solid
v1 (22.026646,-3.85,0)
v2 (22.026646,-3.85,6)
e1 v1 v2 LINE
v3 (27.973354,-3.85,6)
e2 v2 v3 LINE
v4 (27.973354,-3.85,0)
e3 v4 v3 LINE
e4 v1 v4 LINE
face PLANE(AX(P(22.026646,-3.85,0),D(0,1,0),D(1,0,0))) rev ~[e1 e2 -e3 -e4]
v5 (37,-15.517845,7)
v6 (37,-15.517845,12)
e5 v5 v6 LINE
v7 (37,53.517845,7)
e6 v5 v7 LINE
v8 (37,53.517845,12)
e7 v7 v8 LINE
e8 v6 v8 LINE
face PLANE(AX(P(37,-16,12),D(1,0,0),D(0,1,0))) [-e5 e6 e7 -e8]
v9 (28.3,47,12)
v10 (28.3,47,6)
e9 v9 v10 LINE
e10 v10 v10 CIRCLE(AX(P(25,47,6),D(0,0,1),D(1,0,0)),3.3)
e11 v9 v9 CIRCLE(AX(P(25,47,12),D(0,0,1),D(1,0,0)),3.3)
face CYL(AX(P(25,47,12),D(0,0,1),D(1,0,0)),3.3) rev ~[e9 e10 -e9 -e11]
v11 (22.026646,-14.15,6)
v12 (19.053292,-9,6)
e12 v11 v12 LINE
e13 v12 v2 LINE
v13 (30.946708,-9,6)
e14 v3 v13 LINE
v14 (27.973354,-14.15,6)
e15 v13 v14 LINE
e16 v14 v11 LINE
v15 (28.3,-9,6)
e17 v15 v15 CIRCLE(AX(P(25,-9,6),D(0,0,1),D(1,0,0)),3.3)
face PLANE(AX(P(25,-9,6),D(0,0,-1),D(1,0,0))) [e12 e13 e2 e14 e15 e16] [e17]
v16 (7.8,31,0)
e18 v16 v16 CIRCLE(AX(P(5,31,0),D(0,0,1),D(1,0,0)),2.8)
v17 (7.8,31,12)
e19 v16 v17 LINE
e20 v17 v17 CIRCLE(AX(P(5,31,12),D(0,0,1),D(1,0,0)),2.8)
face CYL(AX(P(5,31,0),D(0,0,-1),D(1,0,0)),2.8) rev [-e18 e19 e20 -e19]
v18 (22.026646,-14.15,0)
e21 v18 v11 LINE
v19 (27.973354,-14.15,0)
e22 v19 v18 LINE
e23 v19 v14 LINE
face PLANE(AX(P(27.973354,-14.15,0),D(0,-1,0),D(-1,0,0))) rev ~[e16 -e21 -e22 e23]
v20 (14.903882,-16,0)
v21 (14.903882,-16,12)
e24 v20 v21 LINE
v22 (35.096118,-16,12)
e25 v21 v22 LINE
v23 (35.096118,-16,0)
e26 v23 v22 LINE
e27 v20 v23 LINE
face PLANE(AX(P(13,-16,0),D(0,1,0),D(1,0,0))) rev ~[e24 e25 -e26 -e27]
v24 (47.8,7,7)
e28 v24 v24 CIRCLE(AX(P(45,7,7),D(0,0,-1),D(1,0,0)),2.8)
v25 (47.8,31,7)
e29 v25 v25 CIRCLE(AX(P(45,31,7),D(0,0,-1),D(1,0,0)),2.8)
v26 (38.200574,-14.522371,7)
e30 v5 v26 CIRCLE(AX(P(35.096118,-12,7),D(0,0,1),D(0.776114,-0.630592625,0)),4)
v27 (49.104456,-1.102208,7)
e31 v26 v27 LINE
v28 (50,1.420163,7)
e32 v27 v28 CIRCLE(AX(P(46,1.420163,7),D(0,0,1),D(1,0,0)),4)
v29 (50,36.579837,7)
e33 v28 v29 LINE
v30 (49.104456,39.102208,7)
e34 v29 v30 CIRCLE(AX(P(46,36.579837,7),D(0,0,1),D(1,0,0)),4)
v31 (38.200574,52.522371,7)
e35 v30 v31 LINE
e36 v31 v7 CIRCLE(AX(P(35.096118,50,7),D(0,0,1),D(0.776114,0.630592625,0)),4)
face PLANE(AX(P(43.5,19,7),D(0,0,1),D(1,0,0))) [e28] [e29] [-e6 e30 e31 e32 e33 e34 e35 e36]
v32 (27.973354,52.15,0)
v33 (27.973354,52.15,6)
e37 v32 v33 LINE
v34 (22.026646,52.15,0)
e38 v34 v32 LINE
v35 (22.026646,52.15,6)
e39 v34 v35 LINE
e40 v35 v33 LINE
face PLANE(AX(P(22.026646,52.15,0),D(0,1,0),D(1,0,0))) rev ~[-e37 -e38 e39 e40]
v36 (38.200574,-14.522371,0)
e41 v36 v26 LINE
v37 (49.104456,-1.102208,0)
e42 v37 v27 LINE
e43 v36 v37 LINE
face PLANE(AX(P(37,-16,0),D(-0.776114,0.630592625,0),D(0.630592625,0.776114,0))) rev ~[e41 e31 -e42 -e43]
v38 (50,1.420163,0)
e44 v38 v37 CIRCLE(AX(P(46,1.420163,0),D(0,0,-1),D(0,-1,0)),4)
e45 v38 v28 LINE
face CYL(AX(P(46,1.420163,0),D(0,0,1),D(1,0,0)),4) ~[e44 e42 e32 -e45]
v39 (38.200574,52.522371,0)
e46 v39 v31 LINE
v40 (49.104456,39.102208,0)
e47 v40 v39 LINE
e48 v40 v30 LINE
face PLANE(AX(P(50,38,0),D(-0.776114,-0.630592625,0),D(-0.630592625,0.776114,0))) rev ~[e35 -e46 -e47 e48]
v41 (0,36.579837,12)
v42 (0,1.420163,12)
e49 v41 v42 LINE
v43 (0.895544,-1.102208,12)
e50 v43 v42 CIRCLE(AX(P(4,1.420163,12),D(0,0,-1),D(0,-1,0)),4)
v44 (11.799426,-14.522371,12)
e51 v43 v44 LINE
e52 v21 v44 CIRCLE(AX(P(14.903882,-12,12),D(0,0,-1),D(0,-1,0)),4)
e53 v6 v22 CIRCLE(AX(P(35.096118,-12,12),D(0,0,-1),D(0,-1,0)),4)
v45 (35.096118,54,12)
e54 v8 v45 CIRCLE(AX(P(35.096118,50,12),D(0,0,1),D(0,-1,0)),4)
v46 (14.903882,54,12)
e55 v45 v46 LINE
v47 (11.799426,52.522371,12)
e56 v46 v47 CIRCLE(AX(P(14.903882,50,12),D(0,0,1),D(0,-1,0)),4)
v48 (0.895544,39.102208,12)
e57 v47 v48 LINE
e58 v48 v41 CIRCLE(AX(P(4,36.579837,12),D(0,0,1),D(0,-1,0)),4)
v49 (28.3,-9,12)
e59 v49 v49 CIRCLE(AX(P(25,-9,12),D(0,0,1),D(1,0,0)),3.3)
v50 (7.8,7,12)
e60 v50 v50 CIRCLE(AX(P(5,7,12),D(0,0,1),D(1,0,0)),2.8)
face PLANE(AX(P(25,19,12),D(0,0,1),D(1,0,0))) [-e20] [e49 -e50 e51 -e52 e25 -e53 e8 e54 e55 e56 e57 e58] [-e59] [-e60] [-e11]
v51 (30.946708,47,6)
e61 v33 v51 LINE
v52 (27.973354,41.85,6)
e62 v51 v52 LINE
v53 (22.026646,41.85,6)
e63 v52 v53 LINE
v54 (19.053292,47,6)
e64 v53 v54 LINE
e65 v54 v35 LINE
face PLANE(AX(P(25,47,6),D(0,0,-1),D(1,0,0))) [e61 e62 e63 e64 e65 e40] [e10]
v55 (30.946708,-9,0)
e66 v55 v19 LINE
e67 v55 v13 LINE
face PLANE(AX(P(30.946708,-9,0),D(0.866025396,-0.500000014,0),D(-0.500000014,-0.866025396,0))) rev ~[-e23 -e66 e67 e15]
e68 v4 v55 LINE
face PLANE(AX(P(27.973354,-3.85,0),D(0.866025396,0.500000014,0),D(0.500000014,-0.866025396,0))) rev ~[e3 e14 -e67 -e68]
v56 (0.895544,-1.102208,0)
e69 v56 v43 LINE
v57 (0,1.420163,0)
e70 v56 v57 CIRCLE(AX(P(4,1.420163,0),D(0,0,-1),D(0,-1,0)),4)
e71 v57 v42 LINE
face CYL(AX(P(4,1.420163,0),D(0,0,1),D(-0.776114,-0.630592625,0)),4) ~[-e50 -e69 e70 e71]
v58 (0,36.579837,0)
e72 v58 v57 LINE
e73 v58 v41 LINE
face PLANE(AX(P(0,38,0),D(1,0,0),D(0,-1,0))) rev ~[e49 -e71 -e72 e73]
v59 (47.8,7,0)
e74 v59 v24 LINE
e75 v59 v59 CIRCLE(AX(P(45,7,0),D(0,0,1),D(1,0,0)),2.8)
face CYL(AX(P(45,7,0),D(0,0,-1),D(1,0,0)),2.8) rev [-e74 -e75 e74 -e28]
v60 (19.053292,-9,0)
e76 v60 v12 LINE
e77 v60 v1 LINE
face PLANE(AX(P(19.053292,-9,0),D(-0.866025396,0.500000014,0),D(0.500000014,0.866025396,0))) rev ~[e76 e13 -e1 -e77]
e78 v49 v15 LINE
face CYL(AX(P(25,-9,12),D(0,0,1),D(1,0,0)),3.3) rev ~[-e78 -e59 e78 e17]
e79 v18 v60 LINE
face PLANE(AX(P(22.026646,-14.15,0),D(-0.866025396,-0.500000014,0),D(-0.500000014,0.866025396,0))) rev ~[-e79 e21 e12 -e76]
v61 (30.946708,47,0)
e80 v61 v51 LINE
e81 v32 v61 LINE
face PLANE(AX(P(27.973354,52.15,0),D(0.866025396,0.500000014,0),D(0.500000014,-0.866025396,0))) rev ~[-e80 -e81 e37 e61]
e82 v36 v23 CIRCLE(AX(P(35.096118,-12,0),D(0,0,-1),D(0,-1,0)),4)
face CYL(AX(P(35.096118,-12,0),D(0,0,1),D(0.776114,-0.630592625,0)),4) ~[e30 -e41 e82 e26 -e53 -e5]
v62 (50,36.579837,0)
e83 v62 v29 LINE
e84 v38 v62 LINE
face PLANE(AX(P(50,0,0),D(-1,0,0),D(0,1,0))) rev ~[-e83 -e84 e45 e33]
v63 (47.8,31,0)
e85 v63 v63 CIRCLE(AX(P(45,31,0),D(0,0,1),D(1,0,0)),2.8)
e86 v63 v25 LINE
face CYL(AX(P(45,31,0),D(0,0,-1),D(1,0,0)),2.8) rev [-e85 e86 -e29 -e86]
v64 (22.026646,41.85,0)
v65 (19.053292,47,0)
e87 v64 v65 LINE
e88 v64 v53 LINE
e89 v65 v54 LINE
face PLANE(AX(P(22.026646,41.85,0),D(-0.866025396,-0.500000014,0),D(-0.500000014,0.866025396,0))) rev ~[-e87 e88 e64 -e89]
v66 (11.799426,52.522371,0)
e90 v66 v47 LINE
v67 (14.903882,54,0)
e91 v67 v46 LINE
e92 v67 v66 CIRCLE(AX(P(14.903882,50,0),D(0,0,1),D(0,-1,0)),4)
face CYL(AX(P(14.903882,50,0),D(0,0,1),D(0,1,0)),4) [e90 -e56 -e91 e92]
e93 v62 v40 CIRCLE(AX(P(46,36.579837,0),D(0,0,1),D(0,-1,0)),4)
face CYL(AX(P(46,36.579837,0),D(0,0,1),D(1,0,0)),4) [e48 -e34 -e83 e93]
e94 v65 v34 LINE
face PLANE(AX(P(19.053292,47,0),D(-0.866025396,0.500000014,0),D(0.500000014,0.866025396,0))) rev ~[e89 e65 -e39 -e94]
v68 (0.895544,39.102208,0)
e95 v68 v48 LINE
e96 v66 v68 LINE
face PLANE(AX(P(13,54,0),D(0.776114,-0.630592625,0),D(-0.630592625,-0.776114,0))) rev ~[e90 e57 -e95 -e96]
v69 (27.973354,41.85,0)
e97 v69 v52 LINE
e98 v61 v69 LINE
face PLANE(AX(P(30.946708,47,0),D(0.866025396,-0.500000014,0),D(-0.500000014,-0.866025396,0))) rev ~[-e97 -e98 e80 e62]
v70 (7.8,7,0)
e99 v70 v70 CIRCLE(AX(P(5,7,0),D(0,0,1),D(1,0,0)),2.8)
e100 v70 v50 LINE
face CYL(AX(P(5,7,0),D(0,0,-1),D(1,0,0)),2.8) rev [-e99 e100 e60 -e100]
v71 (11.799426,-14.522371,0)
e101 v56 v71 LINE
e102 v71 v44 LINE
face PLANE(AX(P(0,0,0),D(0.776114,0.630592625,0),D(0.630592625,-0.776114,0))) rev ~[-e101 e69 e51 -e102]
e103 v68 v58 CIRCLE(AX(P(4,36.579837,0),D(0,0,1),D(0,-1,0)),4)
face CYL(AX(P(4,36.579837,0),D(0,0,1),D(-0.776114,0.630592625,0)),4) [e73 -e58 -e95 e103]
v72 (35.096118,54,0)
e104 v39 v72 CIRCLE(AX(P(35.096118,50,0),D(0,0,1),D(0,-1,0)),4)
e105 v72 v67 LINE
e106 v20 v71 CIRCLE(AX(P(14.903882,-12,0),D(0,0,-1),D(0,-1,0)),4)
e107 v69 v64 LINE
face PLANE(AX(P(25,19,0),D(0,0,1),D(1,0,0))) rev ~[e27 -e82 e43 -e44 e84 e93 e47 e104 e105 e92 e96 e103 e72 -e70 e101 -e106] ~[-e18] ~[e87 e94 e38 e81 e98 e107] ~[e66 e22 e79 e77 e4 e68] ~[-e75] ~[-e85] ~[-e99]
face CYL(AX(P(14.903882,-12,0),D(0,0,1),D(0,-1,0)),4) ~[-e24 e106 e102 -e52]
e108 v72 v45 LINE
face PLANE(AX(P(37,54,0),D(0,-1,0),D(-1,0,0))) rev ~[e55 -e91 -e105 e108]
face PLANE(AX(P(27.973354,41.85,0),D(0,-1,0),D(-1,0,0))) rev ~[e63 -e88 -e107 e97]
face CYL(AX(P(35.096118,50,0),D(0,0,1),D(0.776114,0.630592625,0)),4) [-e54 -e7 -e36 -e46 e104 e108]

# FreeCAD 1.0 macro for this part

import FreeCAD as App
import Part
import Sketcher
Q = App.Units.Quantity


def edges_at(feature, points):
    """Names of the edges that pass closest to the given points."""
    edges = feature.Shape.Edges
    near = lambda p: min(range(len(edges)), key=lambda i: edges[i].distToShape(Part.Vertex(*p))[0])
    return sorted({f"Edge{near(p) + 1}" for p in points})


def add_polygon(sketch, points):
    """Adds a closed chain of lines whose ends are joined by coincident constraints."""
    first, n = sketch.GeometryCount, len(points)
    for a, b in zip(points, points[1:] + points[:1]):
        sketch.addGeometry(Part.LineSegment(App.Vector(*a, 0), App.Vector(*b, 0)), False)
    for i in range(n):
        sketch.addConstraint(Sketcher.Constraint("Coincident", first + i, 2, first + (i + 1) % n, 1))

doc = App.newDocument("Part")
params = doc.addObject("Spreadsheet::Sheet", "Params")
for row, (alias, value) in enumerate([
    ("sketch1_diameter", "5.6 mm"),
    ("sketch1_width", "24 mm"),
    ("sketch1_height", "38 mm"),
    ("pad1_length", "12 mm"),
    ("sketch2_diameter", "6.6 mm"),
    ("pocket2_length", "6 mm"),
    ("fillet_radius", "4 mm"),
    ("sketch4_width", "13 mm"),
    ("sketch4_height", "70 mm"),
    ("pocket3_length", "5 mm"),
], start=1):
    params.set(f"A{row}", alias)
    params.set(f"B{row}", "=" + value)
    params.setAlias(f"B{row}", alias)

body = doc.addObject("PartDesign::Body", "Body")

sketch1 = doc.addObject("Sketcher::SketchObject", "Sketch")
body.addObject(sketch1)
sketch1.AttachmentSupport = (doc.XY_Plane, [""])
sketch1.MapMode = "FlatFace"
add_polygon(sketch1, [(50, 0), (50, 38), (37, 54), (13, 54), (0, 38), (0, 0), (13, -16), (37, -16)])
sketch1.addGeometry(Part.Circle(App.Vector(5, 7, 0), App.Vector(0, 0, 1), 2.8), False)
sketch1.addGeometry(Part.Circle(App.Vector(45, 7, 0), App.Vector(0, 0, 1), 2.8), False)
sketch1.addGeometry(Part.Circle(App.Vector(5, 31, 0), App.Vector(0, 0, 1), 2.8), False)
sketch1.addGeometry(Part.Circle(App.Vector(45, 31, 0), App.Vector(0, 0, 1), 2.8), False)
sketch1.addConstraint([
    Sketcher.Constraint("Vertical", 0),
    Sketcher.Constraint("Horizontal", 2),
    Sketcher.Constraint("Vertical", 4),
    Sketcher.Constraint("Horizontal", 6),
    Sketcher.Constraint("Coincident", 4, 2, -1, 1),
    Sketcher.Constraint("Equal", 8, 9),
    Sketcher.Constraint("Equal", 9, 10),
    Sketcher.Constraint("Equal", 10, 11),
    Sketcher.Constraint("PointOnObject", 7, 2, -1),
    Sketcher.Constraint("Parallel", 1, 5),
    Sketcher.Constraint("Parallel", 3, 7),
    Sketcher.Constraint("Horizontal", 8, 3, 9, 3),
    Sketcher.Constraint("Horizontal", 10, 3, 11, 3),
    Sketcher.Constraint("Horizontal", 0, 2, 3, 2),
    Sketcher.Constraint("Vertical", 8, 3, 10, 3),
    Sketcher.Constraint("Vertical", 9, 3, 11, 3),
    Sketcher.Constraint("Vertical", 2, 2, 5, 2),
    Sketcher.Constraint("Vertical", 1, 2, 6, 2),
    Sketcher.Constraint("Diameter", 8, 5.6),
    Sketcher.Constraint("DistanceX", 2, 2, 2, 1, 24.0),
    Sketcher.Constraint("DistanceY", 0, 1, 0, 2, 38.0),
    Sketcher.Constraint("DistanceX", -1, 1, 8, 3, 5.0),
    Sketcher.Constraint("DistanceY", -1, 1, 8, 3, 7.0),
    Sketcher.Constraint("DistanceX", -1, 1, 9, 3, 45.0),
    Sketcher.Constraint("DistanceY", -1, 1, 10, 3, 31.0),
    Sketcher.Constraint("DistanceX", -1, 1, 0, 2, 50.0),
    Sketcher.Constraint("DistanceY", -1, 1, 1, 2, 54.0),
])
sketch1.setExpression("Constraints[26]", "Params.sketch1_diameter")
sketch1.setExpression("Constraints[27]", "Params.sketch1_width")
sketch1.setExpression("Constraints[28]", "Params.sketch1_height")
pad1 = doc.addObject("PartDesign::Pad", "Pad")
body.addObject(pad1)
pad1.Profile = sketch1
pad1.setExpression("Length", "Params.pad1_length")

sketch2 = doc.addObject("Sketcher::SketchObject", "Sketch001")
body.addObject(sketch2)
sketch2.AttachmentSupport = (doc.XY_Plane, [""])
sketch2.MapMode = "FlatFace"
sketch2.AttachmentOffset = App.Placement(App.Vector(0, 0, 12), App.Rotation())
sketch2.addGeometry([
    Part.Circle(App.Vector(25, 47, 0), App.Vector(0, 0, 1), 3.3),
    Part.Circle(App.Vector(25, -9, 0), App.Vector(0, 0, 1), 3.3),
], False)
sketch2.addConstraint([
    Sketcher.Constraint("Equal", 0, 1),
    Sketcher.Constraint("Vertical", 0, 3, 1, 3),
    Sketcher.Constraint("Diameter", 0, 6.6),
    Sketcher.Constraint("DistanceX", -1, 1, 0, 3, 25.0),
    Sketcher.Constraint("DistanceY", -1, 1, 0, 3, 47.0),
    Sketcher.Constraint("DistanceY", 1, 3, -1, 1, 9.0),
])
sketch2.setExpression("Constraints[2]", "Params.sketch2_diameter")
pocket1 = doc.addObject("PartDesign::Pocket", "Pocket")
body.addObject(pocket1)
pocket1.Profile = sketch2
pocket1.Type = "ThroughAll"

sketch3 = doc.addObject("Sketcher::SketchObject", "Sketch002")
body.addObject(sketch3)
sketch3.AttachmentSupport = (doc.XY_Plane, [""])
sketch3.MapMode = "FlatFace"
add_polygon(sketch3, [(28, 52), (31, 47), (28, 42), (22, 42), (19, 47), (22, 52)])
add_polygon(sketch3, [(28, -4), (31, -9), (28, -14), (22, -14), (19, -9), (22, -4)])
sketch3.addConstraint([
    Sketcher.Constraint("Horizontal", 2),
    Sketcher.Constraint("Horizontal", 5),
    Sketcher.Constraint("Horizontal", 8),
    Sketcher.Constraint("Horizontal", 11),
    Sketcher.Constraint("Parallel", 0, 3),
    Sketcher.Constraint("Parallel", 1, 4),
    Sketcher.Constraint("Parallel", 3, 6),
    Sketcher.Constraint("Parallel", 4, 7),
    Sketcher.Constraint("Parallel", 6, 9),
    Sketcher.Constraint("Parallel", 7, 10),
    Sketcher.Constraint("Horizontal", 0, 2, 3, 2),
    Sketcher.Constraint("Horizontal", 6, 2, 9, 2),
    Sketcher.Constraint("Vertical", 2, 2, 4, 2),
    Sketcher.Constraint("Vertical", 1, 2, 5, 2),
    Sketcher.Constraint("Vertical", 0, 2, 6, 2),
    Sketcher.Constraint("Vertical", 5, 2, 7, 2),
    Sketcher.Constraint("Vertical", 4, 2, 8, 2),
    Sketcher.Constraint("Vertical", 8, 2, 10, 2),
    Sketcher.Constraint("Angle", 0, Q("-59.999999 deg")),
    Sketcher.Constraint("DistanceY", -1, 1, 0, 2, 47.0),
    Sketcher.Constraint("DistanceY", 6, 2, -1, 1, 9.0),
    Sketcher.Constraint("DistanceY", 2, 2, 4, 2, 10.3),
    Sketcher.Constraint("DistanceX", 2, 2, 2, 1, 5.946708),
    Sketcher.Constraint("DistanceX", -1, 1, 0, 2, 30.946708),
])
pocket2 = doc.addObject("PartDesign::Pocket", "Pocket001")
body.addObject(pocket2)
pocket2.Profile = sketch3
pocket2.setExpression("Length", "Params.pocket2_length")
pocket2.Reversed = True
doc.recompute()

fillet = doc.addObject("PartDesign::Fillet", "Fillet")
body.addObject(fillet)
fillet.Base = (pocket2, edges_at(pocket2, [
    (0, 38, 6),
    (13, 54, 6),
    (37, 54, 6),
    (0, 0, 6),
    (13, -16, 6),
    (37, -16, 6),
    (50, 0, 6),
    (50, 38, 6),
]))
fillet.setExpression("Radius", "Params.fillet_radius")

sketch4 = doc.addObject("Sketcher::SketchObject", "Sketch003")
body.addObject(sketch4)
sketch4.AttachmentSupport = (doc.XY_Plane, [""])
sketch4.MapMode = "FlatFace"
sketch4.AttachmentOffset = App.Placement(App.Vector(0, 0, 12), App.Rotation())
add_polygon(sketch4, [(37, 54), (37, -16), (50, -16), (50, 54)])
sketch4.addConstraint([
    Sketcher.Constraint("Vertical", 0),
    Sketcher.Constraint("Horizontal", 1),
    Sketcher.Constraint("Vertical", 2),
    Sketcher.Constraint("Horizontal", 3),
    Sketcher.Constraint("DistanceX", 1, 1, 1, 2, 13.0),
    Sketcher.Constraint("DistanceY", 0, 2, 0, 1, 70.0),
    Sketcher.Constraint("DistanceX", -1, 1, 0, 2, 37.0),
    Sketcher.Constraint("DistanceY", 0, 2, -1, 1, 16.0),
])
sketch4.setExpression("Constraints[8]", "Params.sketch4_width")
sketch4.setExpression("Constraints[9]", "Params.sketch4_height")
pocket3 = doc.addObject("PartDesign::Pocket", "Pocket002")
body.addObject(pocket3)
pocket3.Profile = sketch4
pocket3.setExpression("Length", "Params.pocket3_length")

doc.recompute()
